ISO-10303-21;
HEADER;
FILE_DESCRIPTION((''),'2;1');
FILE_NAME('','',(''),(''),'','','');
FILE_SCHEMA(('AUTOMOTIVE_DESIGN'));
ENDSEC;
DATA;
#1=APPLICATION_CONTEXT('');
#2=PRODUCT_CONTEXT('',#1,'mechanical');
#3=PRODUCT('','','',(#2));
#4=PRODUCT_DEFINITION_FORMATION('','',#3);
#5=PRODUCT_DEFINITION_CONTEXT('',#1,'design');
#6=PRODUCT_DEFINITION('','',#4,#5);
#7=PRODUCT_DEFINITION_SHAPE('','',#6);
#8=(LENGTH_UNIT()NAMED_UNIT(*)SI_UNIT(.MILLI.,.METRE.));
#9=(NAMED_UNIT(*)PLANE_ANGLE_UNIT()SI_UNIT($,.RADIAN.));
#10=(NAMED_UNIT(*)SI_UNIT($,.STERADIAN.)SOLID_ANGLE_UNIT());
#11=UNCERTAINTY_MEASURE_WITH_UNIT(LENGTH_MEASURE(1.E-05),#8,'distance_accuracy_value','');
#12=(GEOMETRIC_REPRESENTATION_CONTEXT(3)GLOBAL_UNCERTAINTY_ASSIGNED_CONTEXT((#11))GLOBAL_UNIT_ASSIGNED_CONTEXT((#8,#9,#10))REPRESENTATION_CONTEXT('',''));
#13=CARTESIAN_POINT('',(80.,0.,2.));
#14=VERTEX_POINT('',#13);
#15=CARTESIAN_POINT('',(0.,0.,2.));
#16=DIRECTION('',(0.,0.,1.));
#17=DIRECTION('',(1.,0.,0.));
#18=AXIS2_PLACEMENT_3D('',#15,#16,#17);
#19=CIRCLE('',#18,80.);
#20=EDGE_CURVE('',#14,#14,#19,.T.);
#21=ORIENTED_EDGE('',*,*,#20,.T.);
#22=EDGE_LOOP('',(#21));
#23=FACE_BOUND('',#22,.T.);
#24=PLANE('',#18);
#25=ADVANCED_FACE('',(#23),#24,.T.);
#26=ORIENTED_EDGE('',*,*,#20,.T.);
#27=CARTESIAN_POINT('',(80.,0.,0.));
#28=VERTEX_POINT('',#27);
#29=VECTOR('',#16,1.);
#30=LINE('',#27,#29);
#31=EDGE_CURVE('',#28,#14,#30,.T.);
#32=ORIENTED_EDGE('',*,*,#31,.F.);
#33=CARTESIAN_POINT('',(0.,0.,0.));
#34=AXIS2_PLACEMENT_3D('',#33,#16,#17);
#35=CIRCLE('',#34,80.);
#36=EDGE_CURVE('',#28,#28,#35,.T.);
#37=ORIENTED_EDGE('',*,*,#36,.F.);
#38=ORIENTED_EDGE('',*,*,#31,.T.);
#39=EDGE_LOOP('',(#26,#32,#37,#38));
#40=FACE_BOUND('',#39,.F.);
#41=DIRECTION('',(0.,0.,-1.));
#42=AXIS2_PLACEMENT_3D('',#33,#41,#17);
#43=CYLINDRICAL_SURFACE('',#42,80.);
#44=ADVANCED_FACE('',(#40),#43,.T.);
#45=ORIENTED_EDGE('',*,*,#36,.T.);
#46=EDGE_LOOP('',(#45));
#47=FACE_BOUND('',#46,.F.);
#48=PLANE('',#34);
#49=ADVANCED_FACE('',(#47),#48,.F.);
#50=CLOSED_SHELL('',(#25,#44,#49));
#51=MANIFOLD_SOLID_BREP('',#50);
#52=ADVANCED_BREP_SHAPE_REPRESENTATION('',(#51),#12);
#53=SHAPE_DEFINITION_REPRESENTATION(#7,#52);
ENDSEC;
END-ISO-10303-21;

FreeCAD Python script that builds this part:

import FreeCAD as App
import Part
import Sketcher
from FreeCAD import Vector

doc = App.newDocument("Part")
params = doc.addObject("Spreadsheet::Sheet", "Params")
for row, (alias, value) in enumerate([
    ("sketch1_diameter", "160 mm"),
    ("pad1_length", "2 mm"),
], start=1):
    params.set(f"A{row}", alias)
    params.set(f"B{row}", "=" + value)
    params.setAlias(f"B{row}", alias)

body = doc.addObject("PartDesign::Body", "Body")

sketch1 = doc.addObject("Sketcher::SketchObject", "Sketch")
body.addObject(sketch1)
sketch1.AttachmentSupport = (doc.XY_Plane, [""])
sketch1.MapMode = "FlatFace"
sketch1.addGeometry(Part.Circle(Vector(0, 0, 0), Vector(0, 0, 1), 80), False)
sketch1.addConstraint(Sketcher.Constraint("Coincident", 0, 3, -1, 1))
sketch1.addConstraint(Sketcher.Constraint("Diameter", 0, 160.0))
sketch1.setExpression("Constraints[1]", "Params.sketch1_diameter")
pad1 = doc.addObject("PartDesign::Pad", "Pad")
body.addObject(pad1)
pad1.Profile = sketch1
pad1.setExpression("Length", "Params.pad1_length")

doc.recompute()
